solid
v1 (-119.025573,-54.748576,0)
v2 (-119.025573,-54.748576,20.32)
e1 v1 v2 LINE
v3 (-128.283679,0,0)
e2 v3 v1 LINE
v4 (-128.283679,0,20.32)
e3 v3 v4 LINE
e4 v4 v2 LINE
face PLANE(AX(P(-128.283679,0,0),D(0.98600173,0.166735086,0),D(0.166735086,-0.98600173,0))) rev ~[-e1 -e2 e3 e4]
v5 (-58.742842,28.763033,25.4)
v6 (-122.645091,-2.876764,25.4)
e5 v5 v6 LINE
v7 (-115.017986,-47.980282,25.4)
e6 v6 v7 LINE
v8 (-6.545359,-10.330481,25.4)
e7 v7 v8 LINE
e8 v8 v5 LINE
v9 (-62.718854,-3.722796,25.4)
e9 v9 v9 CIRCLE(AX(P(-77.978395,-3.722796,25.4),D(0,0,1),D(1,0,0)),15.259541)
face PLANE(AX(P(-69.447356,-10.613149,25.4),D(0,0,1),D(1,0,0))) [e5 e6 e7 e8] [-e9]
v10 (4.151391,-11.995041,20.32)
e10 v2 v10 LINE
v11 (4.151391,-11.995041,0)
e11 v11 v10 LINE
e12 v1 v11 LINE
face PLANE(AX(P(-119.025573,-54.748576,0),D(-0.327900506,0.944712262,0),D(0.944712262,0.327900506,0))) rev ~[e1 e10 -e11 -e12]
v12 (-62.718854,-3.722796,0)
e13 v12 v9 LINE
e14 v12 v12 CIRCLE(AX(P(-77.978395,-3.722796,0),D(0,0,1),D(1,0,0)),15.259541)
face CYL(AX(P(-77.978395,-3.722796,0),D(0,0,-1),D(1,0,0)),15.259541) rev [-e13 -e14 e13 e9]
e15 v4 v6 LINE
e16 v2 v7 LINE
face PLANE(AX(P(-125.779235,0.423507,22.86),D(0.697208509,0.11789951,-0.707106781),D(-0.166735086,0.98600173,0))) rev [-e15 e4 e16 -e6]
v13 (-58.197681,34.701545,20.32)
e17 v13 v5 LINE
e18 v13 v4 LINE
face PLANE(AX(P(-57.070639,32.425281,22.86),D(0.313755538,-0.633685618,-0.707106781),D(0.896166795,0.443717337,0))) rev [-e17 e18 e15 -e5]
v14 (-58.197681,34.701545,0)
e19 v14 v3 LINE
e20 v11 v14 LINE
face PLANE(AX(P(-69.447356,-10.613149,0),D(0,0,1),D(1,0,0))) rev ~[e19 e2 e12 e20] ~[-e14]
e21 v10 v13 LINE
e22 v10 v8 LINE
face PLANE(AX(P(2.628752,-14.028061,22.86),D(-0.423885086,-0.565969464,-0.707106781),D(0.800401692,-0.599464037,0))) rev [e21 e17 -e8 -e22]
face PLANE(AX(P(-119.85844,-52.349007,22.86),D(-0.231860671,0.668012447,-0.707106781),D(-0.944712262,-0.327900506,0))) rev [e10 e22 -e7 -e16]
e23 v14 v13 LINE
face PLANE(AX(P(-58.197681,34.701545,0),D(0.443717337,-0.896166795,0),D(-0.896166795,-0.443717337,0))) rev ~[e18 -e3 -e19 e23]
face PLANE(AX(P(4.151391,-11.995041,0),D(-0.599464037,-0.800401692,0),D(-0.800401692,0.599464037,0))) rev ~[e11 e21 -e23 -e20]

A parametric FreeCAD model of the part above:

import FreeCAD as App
import Part
import Sketcher
from FreeCAD import Vector
Q = App.Units.Quantity


def edges_at(feature, points):
    """Names of the edges that pass closest to the given points."""
    edges = feature.Shape.Edges
    near = lambda p: min(range(len(edges)), key=lambda i: edges[i].distToShape(Part.Vertex(*p))[0])
    return sorted({f"Edge{near(p) + 1}" for p in points})

doc = App.newDocument("Part")
body = doc.addObject("PartDesign::Body", "Body")

sketch1 = body.newObject("Sketcher::SketchObject", "Sketch")
sketch1.AttachmentSupport = (doc.getObject("XY_Plane"), [""])
sketch1.MapMode = "FlatFace"
sketch1.addGeometry([
    Part.LineSegment(Vector(-58, 35, 0), Vector(-128, 0, 0)),
    Part.LineSegment(Vector(-128, 0, 0), Vector(-119, -55, 0)),
    Part.LineSegment(Vector(-119, -55, 0), Vector(4, -12, 0)),
    Part.LineSegment(Vector(4, -12, 0), Vector(-58, 35, 0)),
    Part.Circle(Vector(-78, -4, 0), Vector(0, 0, 1), 15),
], False)
sketch1.addConstraint([
    Sketcher.Constraint("Coincident", 0, 2, 1, 1),
    Sketcher.Constraint("Coincident", 1, 2, 2, 1),
    Sketcher.Constraint("Coincident", 2, 2, 3, 1),
    Sketcher.Constraint("Coincident", 3, 2, 0, 1),
    Sketcher.Constraint("PointOnObject", 0, 2, -1),
    Sketcher.Constraint("Diameter", 4, 30.519082),
    Sketcher.Constraint("DistanceX", 0, 2, 3, 2, 70.085998),
    Sketcher.Constraint("Distance", 0, 78.206421),
    Sketcher.Constraint("Distance", 1, 55.525842),
    Sketcher.Constraint("DistanceX", 0, 2, -1, 1, 128.283679),
    Sketcher.Constraint("DistanceX", -1, 1, 2, 2, 4.151391),
    Sketcher.Constraint("DistanceY", 2, 2, -1, 1, 11.995041),
    Sketcher.Constraint("DistanceY", 1, 2, 4, 3, 51.02578),
    Sketcher.Constraint("DistanceY", 4, 3, 3, 2, 38.424341),
    Sketcher.Constraint("DistanceX", 4, 3, -1, 1, 77.978395),
])
pad1 = body.newObject("PartDesign::Pad", "Pad")
pad1.Profile = sketch1
pad1.Length = Q("1 in")
doc.recompute()

chamfer = body.newObject("PartDesign::Chamfer", "Chamfer")
chamfer.Base = (pad1, edges_at(pad1, [
    (-93.241, 17.351, 25.4),
    (-123.655, -27.374, 25.4),
    (-57.437, -33.372, 25.4),
    (-27.023, 11.353, 25.4),
]))
chamfer.Size = Q("0.2 in")

doc.recompute()
